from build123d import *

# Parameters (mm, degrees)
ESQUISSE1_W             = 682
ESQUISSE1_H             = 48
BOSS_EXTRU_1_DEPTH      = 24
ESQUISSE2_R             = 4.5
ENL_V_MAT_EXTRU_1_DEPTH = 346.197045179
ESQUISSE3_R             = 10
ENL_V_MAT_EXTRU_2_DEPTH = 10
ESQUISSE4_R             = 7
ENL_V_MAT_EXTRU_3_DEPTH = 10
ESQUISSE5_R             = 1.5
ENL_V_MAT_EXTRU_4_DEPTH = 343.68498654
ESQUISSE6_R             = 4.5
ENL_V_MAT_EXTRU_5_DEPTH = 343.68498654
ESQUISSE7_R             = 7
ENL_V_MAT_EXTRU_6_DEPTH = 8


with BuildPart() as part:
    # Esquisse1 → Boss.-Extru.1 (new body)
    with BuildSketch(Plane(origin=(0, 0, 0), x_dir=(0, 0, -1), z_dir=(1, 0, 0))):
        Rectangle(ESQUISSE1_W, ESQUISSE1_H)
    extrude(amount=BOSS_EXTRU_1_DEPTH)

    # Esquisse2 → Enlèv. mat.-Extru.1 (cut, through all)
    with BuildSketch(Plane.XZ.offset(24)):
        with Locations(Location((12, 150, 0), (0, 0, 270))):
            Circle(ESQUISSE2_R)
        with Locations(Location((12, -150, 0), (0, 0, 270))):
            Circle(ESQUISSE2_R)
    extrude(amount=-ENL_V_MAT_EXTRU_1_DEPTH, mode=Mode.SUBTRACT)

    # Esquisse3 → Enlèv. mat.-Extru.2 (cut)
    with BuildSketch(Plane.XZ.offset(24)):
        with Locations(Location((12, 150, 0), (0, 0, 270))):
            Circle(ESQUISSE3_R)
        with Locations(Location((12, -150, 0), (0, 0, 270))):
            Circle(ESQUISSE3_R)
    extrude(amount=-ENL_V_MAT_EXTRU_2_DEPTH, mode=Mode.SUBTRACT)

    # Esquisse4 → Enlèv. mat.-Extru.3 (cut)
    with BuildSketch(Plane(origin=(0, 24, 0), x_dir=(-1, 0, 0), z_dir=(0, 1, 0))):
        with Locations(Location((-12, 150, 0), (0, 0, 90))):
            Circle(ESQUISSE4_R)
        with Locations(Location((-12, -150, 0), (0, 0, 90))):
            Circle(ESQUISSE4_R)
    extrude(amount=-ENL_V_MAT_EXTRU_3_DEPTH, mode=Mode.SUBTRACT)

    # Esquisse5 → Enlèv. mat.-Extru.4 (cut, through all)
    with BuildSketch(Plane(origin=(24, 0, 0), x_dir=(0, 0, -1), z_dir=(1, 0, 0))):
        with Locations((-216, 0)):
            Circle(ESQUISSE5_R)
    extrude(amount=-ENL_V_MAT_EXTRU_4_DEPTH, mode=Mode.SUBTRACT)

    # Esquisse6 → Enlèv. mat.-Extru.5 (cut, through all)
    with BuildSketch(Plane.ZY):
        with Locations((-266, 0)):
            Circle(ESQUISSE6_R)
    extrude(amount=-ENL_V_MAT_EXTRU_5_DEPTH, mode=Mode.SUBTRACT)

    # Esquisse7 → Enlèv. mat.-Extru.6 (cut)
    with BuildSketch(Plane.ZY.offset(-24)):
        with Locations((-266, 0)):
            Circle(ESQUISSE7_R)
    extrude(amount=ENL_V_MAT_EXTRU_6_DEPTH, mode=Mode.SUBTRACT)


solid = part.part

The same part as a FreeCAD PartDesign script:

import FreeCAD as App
import Part
import Sketcher
from FreeCAD import Vector

doc = App.newDocument("Part")
body = doc.addObject("PartDesign::Body", "Body")

# Sketch on YZ plane
sketch1 = doc.addObject("Sketcher::SketchObject", "Sketch")
body.addObject(sketch1)
sketch1.AttachmentSupport = (doc.YZ_Plane, [""])
sketch1.MapMode = "FlatFace"
sketch1.addGeometry(Part.LineSegment(Vector(24, 341, 0), Vector(-24, 341, 0)), False)
sketch1.addGeometry(Part.LineSegment(Vector(-24, 341, 0), Vector(-24, -341, 0)), False)
sketch1.addGeometry(Part.LineSegment(Vector(-24, -341, 0), Vector(24, -341, 0)), False)
sketch1.addGeometry(Part.LineSegment(Vector(24, -341, 0), Vector(24, 341, 0)), False)
sketch1.addConstraint(Sketcher.Constraint("Coincident", 0, 2, 1, 1))
sketch1.addConstraint(Sketcher.Constraint("Coincident", 1, 2, 2, 1))
sketch1.addConstraint(Sketcher.Constraint("Coincident", 2, 2, 3, 1))
sketch1.addConstraint(Sketcher.Constraint("Coincident", 3, 2, 0, 1))
sketch1.addConstraint(Sketcher.Constraint("Horizontal", 0))
sketch1.addConstraint(Sketcher.Constraint("Vertical", 1))
sketch1.addConstraint(Sketcher.Constraint("Horizontal", 2))
sketch1.addConstraint(Sketcher.Constraint("Vertical", 3))
sketch1.addConstraint(Sketcher.Constraint("Symmetric", 0, 2, 2, 2, -1, 1))
sketch1.addConstraint(Sketcher.Constraint("DistanceX", 0, 2, 0, 1, 48.0))
sketch1.addConstraint(Sketcher.Constraint("DistanceY", 1, 2, 1, 1, 682.0))
pad1 = doc.addObject("PartDesign::Pad", "Pad")
body.addObject(pad1)
pad1.Profile = sketch1
pad1.Length = 24

# Sketch on XZ plane
sketch2 = doc.addObject("Sketcher::SketchObject", "Sketch001")
body.addObject(sketch2)
sketch2.AttachmentSupport = (doc.XZ_Plane, [""])
sketch2.MapMode = "FlatFace"
sketch2.AttachmentOffset = App.Placement(Vector(0, 0, 24), App.Rotation())
sketch2.addGeometry(Part.Circle(Vector(12, 150, 0), Vector(0, 0, 1), 4.5), False)
sketch2.addGeometry(Part.Circle(Vector(12, -150, 0), Vector(0, 0, 1), 4.5), False)
sketch2.addConstraint(Sketcher.Constraint("Equal", 0, 1))
sketch2.addConstraint(Sketcher.Constraint("Symmetric", 0, 3, 1, 3, -1))
sketch2.addConstraint(Sketcher.Constraint("Diameter", 0, 9.0))
sketch2.addConstraint(Sketcher.Constraint("DistanceX", -1, 1, 0, 3, 12.0))
sketch2.addConstraint(Sketcher.Constraint("DistanceY", -1, 1, 0, 3, 150.0))
pocket1 = doc.addObject("PartDesign::Pocket", "Pocket")
body.addObject(pocket1)
pocket1.Profile = sketch2
pocket1.Type = "ThroughAll"

# Sketch on XZ plane
sketch3 = doc.addObject("Sketcher::SketchObject", "Sketch002")
body.addObject(sketch3)
sketch3.AttachmentSupport = (doc.XZ_Plane, [""])
sketch3.MapMode = "FlatFace"
sketch3.AttachmentOffset = App.Placement(Vector(0, 0, 24), App.Rotation())
sketch3.addGeometry(Part.Circle(Vector(12, 150, 0), Vector(0, 0, 1), 10), False)
sketch3.addGeometry(Part.Circle(Vector(12, -150, 0), Vector(0, 0, 1), 10), False)
sketch3.addConstraint(Sketcher.Constraint("Equal", 0, 1))
sketch3.addConstraint(Sketcher.Constraint("Symmetric", 0, 3, 1, 3, -1))
sketch3.addConstraint(Sketcher.Constraint("Diameter", 0, 20.0))
sketch3.addConstraint(Sketcher.Constraint("DistanceX", -1, 1, 0, 3, 12.0))
sketch3.addConstraint(Sketcher.Constraint("DistanceY", -1, 1, 0, 3, 150.0))
pocket2 = doc.addObject("PartDesign::Pocket", "Pocket001")
body.addObject(pocket2)
pocket2.Profile = sketch3
pocket2.Length = 10

# Sketch on XZ plane
sketch4 = doc.addObject("Sketcher::SketchObject", "Sketch003")
body.addObject(sketch4)
sketch4.AttachmentSupport = (doc.XZ_Plane, [""])
sketch4.MapMode = "FlatFace"
sketch4.AttachmentOffset = App.Placement(Vector(0, 0, -24), App.Rotation())
sketch4.addGeometry(Part.Circle(Vector(12, 150, 0), Vector(0, 0, 1), 7), False)
sketch4.addGeometry(Part.Circle(Vector(12, -150, 0), Vector(0, 0, 1), 7), False)
sketch4.addConstraint(Sketcher.Constraint("Equal", 0, 1))
sketch4.addConstraint(Sketcher.Constraint("Symmetric", 0, 3, 1, 3, -1))
sketch4.addConstraint(Sketcher.Constraint("Diameter", 0, 14.0))
sketch4.addConstraint(Sketcher.Constraint("DistanceX", -1, 1, 0, 3, 12.0))
sketch4.addConstraint(Sketcher.Constraint("DistanceY", -1, 1, 0, 3, 150.0))
pocket3 = doc.addObject("PartDesign::Pocket", "Pocket002")
body.addObject(pocket3)
pocket3.Profile = sketch4
pocket3.Length = 10
pocket3.Reversed = True

# Sketch on YZ plane
sketch5 = doc.addObject("Sketcher::SketchObject", "Sketch004")
body.addObject(sketch5)
sketch5.AttachmentSupport = (doc.YZ_Plane, [""])
sketch5.MapMode = "FlatFace"
sketch5.AttachmentOffset = App.Placement(Vector(0, 0, 24), App.Rotation())
sketch5.addGeometry(Part.Circle(Vector(0, 216, 0), Vector(0, 0, 1), 1.5), False)
sketch5.addConstraint(Sketcher.Constraint("PointOnObject", 0, 3, -2))
sketch5.addConstraint(Sketcher.Constraint("Diameter", 0, 3.0))
sketch5.addConstraint(Sketcher.Constraint("DistanceY", -1, 1, 0, 3, 216.0))
pocket4 = doc.addObject("PartDesign::Pocket", "Pocket003")
body.addObject(pocket4)
pocket4.Profile = sketch5
pocket4.Type = "ThroughAll"

# Sketch on YZ plane
sketch6 = doc.addObject("Sketcher::SketchObject", "Sketch005")
body.addObject(sketch6)
sketch6.AttachmentSupport = (doc.YZ_Plane, [""])
sketch6.MapMode = "FlatFace"
sketch6.addGeometry(Part.Circle(Vector(0, -266, 0), Vector(0, 0, 1), 4.5), False)
sketch6.addConstraint(Sketcher.Constraint("PointOnObject", 0, 3, -2))
sketch6.addConstraint(Sketcher.Constraint("Diameter", 0, 9.0))
sketch6.addConstraint(Sketcher.Constraint("DistanceY", 0, 3, -1, 1, 266.0))
pocket5 = doc.addObject("PartDesign::Pocket", "Pocket004")
body.addObject(pocket5)
pocket5.Profile = sketch6
pocket5.Type = "ThroughAll"
pocket5.Reversed = True

# Sketch on YZ plane
sketch7 = doc.addObject("Sketcher::SketchObject", "Sketch006")
body.addObject(sketch7)
sketch7.AttachmentSupport = (doc.YZ_Plane, [""])
sketch7.MapMode = "FlatFace"
sketch7.AttachmentOffset = App.Placement(Vector(0, 0, 24), App.Rotation())
sketch7.addGeometry(Part.Circle(Vector(0, -266, 0), Vector(0, 0, 1), 7), False)
sketch7.addConstraint(Sketcher.Constraint("PointOnObject", 0, 3, -2))
sketch7.addConstraint(Sketcher.Constraint("Diameter", 0, 14.0))
sketch7.addConstraint(Sketcher.Constraint("DistanceY", 0, 3, -1, 1, 266.0))
pocket6 = doc.addObject("PartDesign::Pocket", "Pocket005")
body.addObject(pocket6)
pocket6.Profile = sketch7
pocket6.Length = 8

doc.recompute()
